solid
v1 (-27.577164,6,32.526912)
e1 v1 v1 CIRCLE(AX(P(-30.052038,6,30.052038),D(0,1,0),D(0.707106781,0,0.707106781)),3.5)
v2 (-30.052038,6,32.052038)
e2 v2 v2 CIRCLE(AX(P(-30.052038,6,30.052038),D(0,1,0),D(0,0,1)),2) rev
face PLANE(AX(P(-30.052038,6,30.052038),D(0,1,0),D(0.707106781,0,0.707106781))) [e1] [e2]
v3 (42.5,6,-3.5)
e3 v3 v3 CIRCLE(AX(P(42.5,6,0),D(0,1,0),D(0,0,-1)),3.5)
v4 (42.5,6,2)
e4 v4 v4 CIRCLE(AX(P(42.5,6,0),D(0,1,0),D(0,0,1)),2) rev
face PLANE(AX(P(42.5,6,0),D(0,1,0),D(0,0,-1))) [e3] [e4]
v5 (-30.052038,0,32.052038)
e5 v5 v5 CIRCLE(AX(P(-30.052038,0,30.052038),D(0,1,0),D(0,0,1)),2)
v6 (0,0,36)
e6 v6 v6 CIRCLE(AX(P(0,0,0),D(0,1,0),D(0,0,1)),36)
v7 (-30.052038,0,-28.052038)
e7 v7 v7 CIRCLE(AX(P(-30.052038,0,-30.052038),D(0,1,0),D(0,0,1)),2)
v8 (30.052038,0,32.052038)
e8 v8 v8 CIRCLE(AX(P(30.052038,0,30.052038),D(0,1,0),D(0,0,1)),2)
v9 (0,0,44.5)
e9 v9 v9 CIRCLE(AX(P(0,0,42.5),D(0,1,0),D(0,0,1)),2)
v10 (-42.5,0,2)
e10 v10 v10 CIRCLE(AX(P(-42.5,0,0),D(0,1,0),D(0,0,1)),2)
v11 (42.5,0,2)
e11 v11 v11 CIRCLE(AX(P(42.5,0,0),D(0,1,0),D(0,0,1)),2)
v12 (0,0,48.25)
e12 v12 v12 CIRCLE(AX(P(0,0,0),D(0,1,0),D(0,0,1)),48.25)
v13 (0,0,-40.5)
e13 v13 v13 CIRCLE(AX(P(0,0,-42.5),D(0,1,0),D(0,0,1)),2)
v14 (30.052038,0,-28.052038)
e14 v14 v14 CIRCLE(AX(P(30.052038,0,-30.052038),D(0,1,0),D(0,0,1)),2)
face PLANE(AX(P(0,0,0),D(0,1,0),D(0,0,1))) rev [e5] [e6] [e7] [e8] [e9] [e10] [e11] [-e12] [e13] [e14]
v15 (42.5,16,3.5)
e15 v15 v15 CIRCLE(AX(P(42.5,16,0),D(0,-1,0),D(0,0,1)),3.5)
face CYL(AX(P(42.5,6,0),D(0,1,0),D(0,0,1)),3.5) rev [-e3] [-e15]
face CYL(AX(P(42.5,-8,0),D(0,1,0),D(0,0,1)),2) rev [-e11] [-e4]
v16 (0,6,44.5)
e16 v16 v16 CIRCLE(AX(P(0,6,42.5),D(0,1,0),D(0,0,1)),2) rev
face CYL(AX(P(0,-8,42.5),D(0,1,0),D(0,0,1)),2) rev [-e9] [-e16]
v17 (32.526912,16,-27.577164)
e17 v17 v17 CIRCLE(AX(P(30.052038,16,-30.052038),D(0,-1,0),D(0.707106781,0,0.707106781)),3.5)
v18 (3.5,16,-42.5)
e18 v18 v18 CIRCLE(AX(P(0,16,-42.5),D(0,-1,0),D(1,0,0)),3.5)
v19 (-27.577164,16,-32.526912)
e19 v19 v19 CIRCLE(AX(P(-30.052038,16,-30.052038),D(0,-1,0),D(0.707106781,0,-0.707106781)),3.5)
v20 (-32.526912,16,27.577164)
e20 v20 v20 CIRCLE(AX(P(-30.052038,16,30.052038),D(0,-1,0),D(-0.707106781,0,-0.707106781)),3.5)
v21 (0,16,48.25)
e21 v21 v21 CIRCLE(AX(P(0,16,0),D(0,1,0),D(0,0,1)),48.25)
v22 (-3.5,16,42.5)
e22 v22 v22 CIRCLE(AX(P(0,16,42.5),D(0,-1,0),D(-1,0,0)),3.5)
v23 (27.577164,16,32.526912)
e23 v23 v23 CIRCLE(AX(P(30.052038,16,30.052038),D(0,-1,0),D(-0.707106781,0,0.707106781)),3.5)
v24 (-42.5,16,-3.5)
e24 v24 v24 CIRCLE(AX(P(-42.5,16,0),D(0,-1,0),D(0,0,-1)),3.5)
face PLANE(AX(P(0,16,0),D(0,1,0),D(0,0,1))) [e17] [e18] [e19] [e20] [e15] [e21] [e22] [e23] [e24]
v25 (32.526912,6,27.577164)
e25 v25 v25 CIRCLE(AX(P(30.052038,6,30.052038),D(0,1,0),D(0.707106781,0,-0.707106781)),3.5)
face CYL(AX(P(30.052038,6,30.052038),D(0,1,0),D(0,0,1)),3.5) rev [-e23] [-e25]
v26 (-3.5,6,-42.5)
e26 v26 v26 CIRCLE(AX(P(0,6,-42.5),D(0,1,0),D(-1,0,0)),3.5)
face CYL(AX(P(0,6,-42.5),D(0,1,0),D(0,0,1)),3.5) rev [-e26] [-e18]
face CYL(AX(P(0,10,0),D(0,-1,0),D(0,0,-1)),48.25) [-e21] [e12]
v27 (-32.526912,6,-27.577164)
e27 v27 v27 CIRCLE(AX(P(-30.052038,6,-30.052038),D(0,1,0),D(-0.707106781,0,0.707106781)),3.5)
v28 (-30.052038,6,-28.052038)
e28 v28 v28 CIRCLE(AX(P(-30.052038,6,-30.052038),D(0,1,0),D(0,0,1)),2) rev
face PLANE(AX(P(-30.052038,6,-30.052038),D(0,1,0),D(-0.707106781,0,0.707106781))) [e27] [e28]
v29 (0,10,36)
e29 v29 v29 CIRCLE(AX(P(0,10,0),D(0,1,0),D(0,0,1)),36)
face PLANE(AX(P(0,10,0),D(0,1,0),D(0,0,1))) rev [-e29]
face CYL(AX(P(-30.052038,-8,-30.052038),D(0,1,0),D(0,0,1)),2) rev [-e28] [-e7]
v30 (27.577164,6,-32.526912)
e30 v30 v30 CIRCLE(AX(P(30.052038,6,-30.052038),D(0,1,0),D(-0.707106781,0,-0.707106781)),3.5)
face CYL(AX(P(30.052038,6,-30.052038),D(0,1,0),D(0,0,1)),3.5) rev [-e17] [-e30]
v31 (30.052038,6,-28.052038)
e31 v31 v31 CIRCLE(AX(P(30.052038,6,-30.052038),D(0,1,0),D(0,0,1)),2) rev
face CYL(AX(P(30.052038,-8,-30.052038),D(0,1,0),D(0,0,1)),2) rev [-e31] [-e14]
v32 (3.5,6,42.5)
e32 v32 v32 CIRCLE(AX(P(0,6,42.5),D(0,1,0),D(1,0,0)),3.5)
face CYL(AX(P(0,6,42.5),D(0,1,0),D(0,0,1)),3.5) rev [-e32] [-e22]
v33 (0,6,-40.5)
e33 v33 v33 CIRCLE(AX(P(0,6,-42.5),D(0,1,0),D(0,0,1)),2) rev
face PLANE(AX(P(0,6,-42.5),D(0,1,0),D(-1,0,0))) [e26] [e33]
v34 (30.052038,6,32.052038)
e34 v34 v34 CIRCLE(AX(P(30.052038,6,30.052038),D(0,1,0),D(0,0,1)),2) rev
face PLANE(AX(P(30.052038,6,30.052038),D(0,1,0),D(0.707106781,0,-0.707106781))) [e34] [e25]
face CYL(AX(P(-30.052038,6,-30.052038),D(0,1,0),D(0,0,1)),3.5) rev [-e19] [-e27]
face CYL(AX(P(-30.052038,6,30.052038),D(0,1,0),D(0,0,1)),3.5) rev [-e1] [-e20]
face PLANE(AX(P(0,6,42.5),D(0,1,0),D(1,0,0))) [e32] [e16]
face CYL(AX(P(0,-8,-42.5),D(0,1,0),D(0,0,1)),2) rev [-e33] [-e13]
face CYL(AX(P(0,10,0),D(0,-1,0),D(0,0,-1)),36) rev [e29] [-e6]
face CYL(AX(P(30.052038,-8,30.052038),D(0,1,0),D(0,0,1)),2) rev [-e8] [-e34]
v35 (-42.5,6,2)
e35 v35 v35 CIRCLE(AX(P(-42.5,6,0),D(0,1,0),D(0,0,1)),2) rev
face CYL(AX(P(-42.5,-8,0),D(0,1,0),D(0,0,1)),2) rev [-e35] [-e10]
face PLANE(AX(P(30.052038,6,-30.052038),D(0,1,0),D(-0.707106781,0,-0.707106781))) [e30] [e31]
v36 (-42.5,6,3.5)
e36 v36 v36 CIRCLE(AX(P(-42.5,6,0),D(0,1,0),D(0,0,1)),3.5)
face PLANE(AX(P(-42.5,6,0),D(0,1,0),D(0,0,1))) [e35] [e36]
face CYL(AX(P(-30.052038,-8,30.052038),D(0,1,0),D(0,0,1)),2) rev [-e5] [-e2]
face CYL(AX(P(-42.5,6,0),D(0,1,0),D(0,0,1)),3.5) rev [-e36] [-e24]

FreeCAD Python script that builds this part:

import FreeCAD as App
import Part
import Sketcher

V = App.Vector
Q = App.Units.Quantity

doc = App.newDocument("Part")
body = doc.addObject("PartDesign::Body", "Body")

# Sketch on XZ plane
sketch1 = doc.addObject("Sketcher::SketchObject", "Sketch")
body.addObject(sketch1)
sketch1.AttachmentSupport = (doc.XZ_Plane, [""])
sketch1.MapMode = "FlatFace"
sketch1.addGeometry(Part.Circle(V(0, 0, 0), V(0, 0, 1), 48), False)
sketch1.addGeometry(Part.Circle(V(0, 0, 0), V(0, 0, 1), 36), False)
sketch1.addConstraint(Sketcher.Constraint("Coincident", 0, 3, -1, 1))
sketch1.addConstraint(Sketcher.Constraint("Coincident", 1, 3, -1, 1))
sketch1.addConstraint(Sketcher.Constraint("Diameter", 1, Q("72 mm")))
sketch1.addConstraint(Sketcher.Constraint("Diameter", 0, Q("96.5 mm")))
pad1 = doc.addObject("PartDesign::Pad", "Pad")
body.addObject(pad1)
pad1.Profile = sketch1
pad1.Length = 10
pad1.Reversed = True

# Sketch on XZ plane
sketch2 = doc.addObject("Sketcher::SketchObject", "Sketch001")
body.addObject(sketch2)
sketch2.AttachmentSupport = (doc.XZ_Plane, [""])
sketch2.MapMode = "FlatFace"
sketch2.AttachmentOffset = App.Placement(V(0, 0, -10), App.Rotation())
sketch2.addGeometry(Part.Circle(V(-42.5, 0, 0), V(0, 0, 1), 2), False)
sketch2.addConstraint(Sketcher.Constraint("PointOnObject", 0, 3, -1))
sketch2.addConstraint(Sketcher.Constraint("Diameter", 0, Q("4 mm")))
sketch2.addConstraint(Sketcher.Constraint("DistanceX", 0, 3, -1, 1, Q("42.5 mm")))
pocket1 = doc.addObject("PartDesign::Pocket", "Pocket")
body.addObject(pocket1)
pocket1.Profile = sketch2
pocket1.Length = 18
pocket1.Reversed = True
doc.recompute()

polarpattern = doc.addObject("PartDesign::PolarPattern", "PolarPattern")
body.addObject(polarpattern)
polarpattern.Originals = [pocket1]
polarpattern.Axis = (doc.Y_Axis, [""])
polarpattern.Angle = 360
polarpattern.Occurrences = 8
body.Tip = polarpattern

# Sketch on XZ plane
sketch3 = doc.addObject("Sketcher::SketchObject", "Sketch002")
body.addObject(sketch3)
sketch3.AttachmentSupport = (doc.XZ_Plane, [""])
sketch3.MapMode = "FlatFace"
sketch3.AttachmentOffset = App.Placement(V(0, 0, -10), App.Rotation())
sketch3.addGeometry(Part.Circle(V(-42.5, 0, 0), V(0, 0, 1), 3.5), False)
sketch3.addConstraint(Sketcher.Constraint("PointOnObject", 0, 3, -1))
sketch3.addConstraint(Sketcher.Constraint("Diameter", 0, Q("7 mm")))
sketch3.addConstraint(Sketcher.Constraint("DistanceX", 0, 3, -1, 1, Q("42.5 mm")))
pocket2 = doc.addObject("PartDesign::Pocket", "Pocket001")
body.addObject(pocket2)
pocket2.Profile = sketch3
pocket2.Length = 4
pocket2.Reversed = True
doc.recompute()

polarpattern2 = doc.addObject("PartDesign::PolarPattern", "PolarPattern001")
body.addObject(polarpattern2)
polarpattern2.Originals = [pocket2]
polarpattern2.Axis = (doc.Y_Axis, [""])
polarpattern2.Angle = 360
polarpattern2.Occurrences = 8
body.Tip = polarpattern2

# Sketch on XZ plane
sketch4 = doc.addObject("Sketcher::SketchObject", "Sketch003")
body.addObject(sketch4)
sketch4.AttachmentSupport = (doc.XZ_Plane, [""])
sketch4.MapMode = "FlatFace"
sketch4.AttachmentOffset = App.Placement(V(0, 0, -10), App.Rotation())
sketch4.addGeometry(Part.Circle(V(0, 0, 0), V(0, 0, 1), 48), False)
sketch4.addConstraint(Sketcher.Constraint("Coincident", 0, 3, -1, 1))
sketch4.addConstraint(Sketcher.Constraint("Diameter", 0, Q("96.5 mm")))
pad2 = doc.addObject("PartDesign::Pad", "Pad001")
body.addObject(pad2)
pad2.Profile = sketch4
pad2.Length = 6
pad2.Reversed = True

# Sketch on XZ plane
sketch5 = doc.addObject("Sketcher::SketchObject", "Sketch004")
body.addObject(sketch5)
sketch5.AttachmentSupport = (doc.XZ_Plane, [""])
sketch5.MapMode = "FlatFace"
sketch5.AttachmentOffset = App.Placement(V(0, 0, -16), App.Rotation())
sketch5.addGeometry(Part.Circle(V(-42.5, 0, 0), V(0, 0, 1), 3.5), False)
sketch5.addConstraint(Sketcher.Constraint("PointOnObject", 0, 3, -1))
sketch5.addConstraint(Sketcher.Constraint("Diameter", 0, Q("7 mm")))
sketch5.addConstraint(Sketcher.Constraint("DistanceX", 0, 3, -1, 1, Q("42.5 mm")))
pocket3 = doc.addObject("PartDesign::Pocket", "Pocket002")
body.addObject(pocket3)
pocket3.Profile = sketch5
pocket3.Length = 6
pocket3.Reversed = True
doc.recompute()

polarpattern3 = doc.addObject("PartDesign::PolarPattern", "PolarPattern002")
body.addObject(polarpattern3)
polarpattern3.Originals = [pocket3]
polarpattern3.Axis = (doc.Y_Axis, [""])
polarpattern3.Angle = 360
polarpattern3.Occurrences = 8
body.Tip = polarpattern3

doc.recompute()
